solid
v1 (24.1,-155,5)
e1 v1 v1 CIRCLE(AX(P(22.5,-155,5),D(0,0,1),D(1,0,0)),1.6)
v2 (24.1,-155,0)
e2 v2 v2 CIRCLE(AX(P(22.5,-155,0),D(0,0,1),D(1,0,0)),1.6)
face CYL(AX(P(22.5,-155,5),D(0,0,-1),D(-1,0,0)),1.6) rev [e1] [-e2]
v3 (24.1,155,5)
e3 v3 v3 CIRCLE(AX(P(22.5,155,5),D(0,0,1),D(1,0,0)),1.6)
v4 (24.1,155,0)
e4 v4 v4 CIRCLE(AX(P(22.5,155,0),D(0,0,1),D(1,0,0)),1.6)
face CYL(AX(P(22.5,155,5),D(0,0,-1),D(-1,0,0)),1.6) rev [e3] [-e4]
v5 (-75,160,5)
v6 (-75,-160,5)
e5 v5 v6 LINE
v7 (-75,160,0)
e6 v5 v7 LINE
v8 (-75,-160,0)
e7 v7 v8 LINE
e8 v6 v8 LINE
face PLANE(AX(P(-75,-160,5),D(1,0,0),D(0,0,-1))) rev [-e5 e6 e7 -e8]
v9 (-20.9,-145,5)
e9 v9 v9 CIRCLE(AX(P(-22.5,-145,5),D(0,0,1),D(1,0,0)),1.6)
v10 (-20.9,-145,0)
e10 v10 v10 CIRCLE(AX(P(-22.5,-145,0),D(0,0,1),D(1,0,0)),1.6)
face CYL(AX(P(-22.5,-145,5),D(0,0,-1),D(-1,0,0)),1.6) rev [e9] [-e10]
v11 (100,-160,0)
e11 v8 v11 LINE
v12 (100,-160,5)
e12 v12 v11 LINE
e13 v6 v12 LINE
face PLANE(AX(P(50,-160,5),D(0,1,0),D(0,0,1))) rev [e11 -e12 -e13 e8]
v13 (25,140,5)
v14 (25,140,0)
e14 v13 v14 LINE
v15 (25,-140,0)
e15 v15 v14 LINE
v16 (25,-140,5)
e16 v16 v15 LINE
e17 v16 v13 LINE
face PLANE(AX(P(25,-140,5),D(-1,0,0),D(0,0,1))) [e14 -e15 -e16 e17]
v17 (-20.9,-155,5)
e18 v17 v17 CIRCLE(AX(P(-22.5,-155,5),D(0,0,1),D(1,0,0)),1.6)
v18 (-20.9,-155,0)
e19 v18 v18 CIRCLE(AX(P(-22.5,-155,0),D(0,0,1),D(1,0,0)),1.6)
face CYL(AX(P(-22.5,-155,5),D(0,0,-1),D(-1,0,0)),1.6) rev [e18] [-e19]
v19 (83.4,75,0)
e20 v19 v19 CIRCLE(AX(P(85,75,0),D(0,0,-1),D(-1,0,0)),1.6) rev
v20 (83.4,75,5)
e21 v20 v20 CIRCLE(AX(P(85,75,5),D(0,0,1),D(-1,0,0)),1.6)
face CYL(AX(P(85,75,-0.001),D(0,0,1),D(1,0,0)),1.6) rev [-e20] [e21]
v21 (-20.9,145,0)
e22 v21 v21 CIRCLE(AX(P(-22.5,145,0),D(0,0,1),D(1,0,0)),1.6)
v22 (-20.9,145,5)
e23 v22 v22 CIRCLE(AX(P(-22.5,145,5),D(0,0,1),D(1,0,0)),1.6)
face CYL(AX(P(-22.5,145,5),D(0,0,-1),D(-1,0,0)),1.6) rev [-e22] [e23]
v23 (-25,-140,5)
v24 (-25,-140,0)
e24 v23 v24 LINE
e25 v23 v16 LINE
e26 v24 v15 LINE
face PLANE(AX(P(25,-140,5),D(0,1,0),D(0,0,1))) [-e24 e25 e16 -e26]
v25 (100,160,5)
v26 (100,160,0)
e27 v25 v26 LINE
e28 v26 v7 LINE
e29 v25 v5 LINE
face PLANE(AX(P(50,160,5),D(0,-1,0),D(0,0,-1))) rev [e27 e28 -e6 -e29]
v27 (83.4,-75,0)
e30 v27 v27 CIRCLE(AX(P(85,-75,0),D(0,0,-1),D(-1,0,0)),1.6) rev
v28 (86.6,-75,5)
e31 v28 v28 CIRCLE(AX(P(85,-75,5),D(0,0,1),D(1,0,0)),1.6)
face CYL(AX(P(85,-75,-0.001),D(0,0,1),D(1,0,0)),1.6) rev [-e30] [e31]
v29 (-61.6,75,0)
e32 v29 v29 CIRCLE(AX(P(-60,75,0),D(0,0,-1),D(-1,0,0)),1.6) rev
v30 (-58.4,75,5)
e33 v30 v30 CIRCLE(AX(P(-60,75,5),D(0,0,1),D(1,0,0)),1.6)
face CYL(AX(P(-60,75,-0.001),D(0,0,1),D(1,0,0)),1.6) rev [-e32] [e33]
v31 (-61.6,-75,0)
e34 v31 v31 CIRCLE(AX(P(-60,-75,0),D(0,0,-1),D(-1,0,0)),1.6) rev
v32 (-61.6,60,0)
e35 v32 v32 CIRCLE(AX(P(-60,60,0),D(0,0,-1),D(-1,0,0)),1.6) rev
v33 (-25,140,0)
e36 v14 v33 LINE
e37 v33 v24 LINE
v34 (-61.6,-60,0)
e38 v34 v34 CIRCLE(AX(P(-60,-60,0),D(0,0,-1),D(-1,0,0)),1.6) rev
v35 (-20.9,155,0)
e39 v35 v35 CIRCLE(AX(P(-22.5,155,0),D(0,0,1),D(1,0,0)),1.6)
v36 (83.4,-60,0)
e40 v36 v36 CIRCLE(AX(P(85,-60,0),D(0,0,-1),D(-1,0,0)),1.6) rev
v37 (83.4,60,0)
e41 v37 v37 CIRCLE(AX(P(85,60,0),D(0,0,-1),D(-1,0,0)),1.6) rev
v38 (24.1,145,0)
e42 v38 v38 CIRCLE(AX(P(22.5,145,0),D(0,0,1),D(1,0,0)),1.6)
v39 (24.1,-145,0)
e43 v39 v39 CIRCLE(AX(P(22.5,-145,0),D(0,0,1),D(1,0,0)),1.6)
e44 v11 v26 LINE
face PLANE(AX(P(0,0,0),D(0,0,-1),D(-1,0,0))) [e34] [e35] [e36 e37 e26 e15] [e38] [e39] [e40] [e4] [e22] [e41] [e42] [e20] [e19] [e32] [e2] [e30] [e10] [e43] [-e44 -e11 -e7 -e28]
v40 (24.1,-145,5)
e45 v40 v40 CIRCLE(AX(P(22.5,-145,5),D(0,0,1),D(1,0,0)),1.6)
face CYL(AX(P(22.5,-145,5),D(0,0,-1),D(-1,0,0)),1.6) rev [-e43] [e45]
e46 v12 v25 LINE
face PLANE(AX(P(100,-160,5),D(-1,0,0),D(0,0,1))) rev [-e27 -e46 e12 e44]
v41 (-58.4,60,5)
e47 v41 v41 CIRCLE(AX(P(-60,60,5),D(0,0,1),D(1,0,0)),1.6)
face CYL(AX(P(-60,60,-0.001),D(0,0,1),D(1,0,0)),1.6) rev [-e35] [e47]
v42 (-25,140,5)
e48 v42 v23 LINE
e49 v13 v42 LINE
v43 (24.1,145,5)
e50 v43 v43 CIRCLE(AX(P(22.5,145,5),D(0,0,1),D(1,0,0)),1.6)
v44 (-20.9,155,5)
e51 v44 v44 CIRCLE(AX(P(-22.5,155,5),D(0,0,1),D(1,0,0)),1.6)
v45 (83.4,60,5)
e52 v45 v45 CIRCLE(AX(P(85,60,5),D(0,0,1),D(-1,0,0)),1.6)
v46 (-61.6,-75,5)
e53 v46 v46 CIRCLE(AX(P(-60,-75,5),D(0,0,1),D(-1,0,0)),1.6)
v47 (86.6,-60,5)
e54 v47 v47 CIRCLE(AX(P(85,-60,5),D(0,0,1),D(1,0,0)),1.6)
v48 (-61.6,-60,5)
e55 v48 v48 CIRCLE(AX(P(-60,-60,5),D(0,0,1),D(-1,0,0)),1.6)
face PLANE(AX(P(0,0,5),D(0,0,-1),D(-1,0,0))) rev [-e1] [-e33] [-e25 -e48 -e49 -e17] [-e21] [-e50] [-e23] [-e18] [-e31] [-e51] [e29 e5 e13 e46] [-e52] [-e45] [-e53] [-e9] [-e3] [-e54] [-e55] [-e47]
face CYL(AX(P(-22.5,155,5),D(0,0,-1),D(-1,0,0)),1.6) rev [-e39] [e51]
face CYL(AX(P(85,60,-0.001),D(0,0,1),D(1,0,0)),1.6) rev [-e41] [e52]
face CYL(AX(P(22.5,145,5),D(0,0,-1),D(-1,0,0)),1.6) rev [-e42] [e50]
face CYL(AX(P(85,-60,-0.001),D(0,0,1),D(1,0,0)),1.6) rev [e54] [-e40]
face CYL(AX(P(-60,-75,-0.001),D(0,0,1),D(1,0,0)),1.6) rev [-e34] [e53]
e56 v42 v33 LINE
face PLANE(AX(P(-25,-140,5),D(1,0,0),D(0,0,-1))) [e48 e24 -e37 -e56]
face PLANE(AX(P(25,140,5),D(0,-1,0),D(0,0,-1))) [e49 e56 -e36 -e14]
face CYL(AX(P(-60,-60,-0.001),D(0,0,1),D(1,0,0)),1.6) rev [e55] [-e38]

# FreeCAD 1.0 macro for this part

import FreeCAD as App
import Part
import Sketcher

V = App.Vector
Q = App.Units.Quantity

doc = App.newDocument("Part")
body = doc.addObject("PartDesign::Body", "Body")

# Sketch on XY plane
sketch1 = doc.addObject("Sketcher::SketchObject", "Sketch")
body.addObject(sketch1)
sketch1.AttachmentSupport = (doc.XY_Plane, [""])
sketch1.MapMode = "FlatFace"
sketch1.addGeometry(Part.LineSegment(V(-50, 160, 0), V(-50, -160, 0)), False)
sketch1.addGeometry(Part.LineSegment(V(-50, -160, 0), V(50, -160, 0)), False)
sketch1.addGeometry(Part.LineSegment(V(50, -160, 0), V(50, 160, 0)), False)
sketch1.addGeometry(Part.LineSegment(V(50, 160, 0), V(-50, 160, 0)), False)
sketch1.addGeometry(Part.Circle(V(-22.5, -155, 0), V(0, 0, 1), 1.6), False)
sketch1.addGeometry(Part.Circle(V(-22.5, -145, 0), V(0, 0, 1), 1.6), False)
sketch1.addGeometry(Part.Circle(V(22.5, -155, 0), V(0, 0, 1), 1.6), False)
sketch1.addGeometry(Part.Circle(V(22.5, -145, 0), V(0, 0, 1), 1.6), False)
sketch1.addGeometry(Part.Circle(V(-22.5, 145, 0), V(0, 0, 1), 1.6), False)
sketch1.addGeometry(Part.Circle(V(-22.5, 155, 0), V(0, 0, 1), 1.6), False)
sketch1.addGeometry(Part.LineSegment(V(25, -140, 0), V(-25, -140, 0)), False)
sketch1.addGeometry(Part.LineSegment(V(-25, -140, 0), V(-25, 140, 0)), False)
sketch1.addGeometry(Part.LineSegment(V(-25, 140, 0), V(25, 140, 0)), False)
sketch1.addGeometry(Part.LineSegment(V(25, 140, 0), V(25, -140, 0)), False)
sketch1.addGeometry(Part.Circle(V(22.5, 145, 0), V(0, 0, 1), 1.6), False)
sketch1.addGeometry(Part.Circle(V(22.5, 155, 0), V(0, 0, 1), 1.6), False)
sketch1.addConstraint(Sketcher.Constraint("Coincident", 0, 2, 1, 1))
sketch1.addConstraint(Sketcher.Constraint("Coincident", 1, 2, 2, 1))
sketch1.addConstraint(Sketcher.Constraint("Coincident", 2, 2, 3, 1))
sketch1.addConstraint(Sketcher.Constraint("Coincident", 3, 2, 0, 1))
sketch1.addConstraint(Sketcher.Constraint("Coincident", 10, 2, 11, 1))
sketch1.addConstraint(Sketcher.Constraint("Coincident", 11, 2, 12, 1))
sketch1.addConstraint(Sketcher.Constraint("Coincident", 12, 2, 13, 1))
sketch1.addConstraint(Sketcher.Constraint("Coincident", 13, 2, 10, 1))
sketch1.addConstraint(Sketcher.Constraint("Vertical", 0))
sketch1.addConstraint(Sketcher.Constraint("Horizontal", 1))
sketch1.addConstraint(Sketcher.Constraint("Vertical", 2))
sketch1.addConstraint(Sketcher.Constraint("Horizontal", 3))
sketch1.addConstraint(Sketcher.Constraint("Horizontal", 10))
sketch1.addConstraint(Sketcher.Constraint("Vertical", 11))
sketch1.addConstraint(Sketcher.Constraint("Horizontal", 12))
sketch1.addConstraint(Sketcher.Constraint("Vertical", 13))
sketch1.addConstraint(Sketcher.Constraint("Equal", 4, 5))
sketch1.addConstraint(Sketcher.Constraint("Equal", 5, 6))
sketch1.addConstraint(Sketcher.Constraint("Equal", 6, 7))
sketch1.addConstraint(Sketcher.Constraint("Equal", 7, 8))
sketch1.addConstraint(Sketcher.Constraint("Equal", 8, 9))
sketch1.addConstraint(Sketcher.Constraint("Equal", 9, 14))
sketch1.addConstraint(Sketcher.Constraint("Equal", 14, 15))
sketch1.addConstraint(Sketcher.Constraint("Symmetric", 7, 3, 8, 3, -1, 1))
sketch1.addConstraint(Sketcher.Constraint("Symmetric", 6, 3, 9, 3, -1, 1))
sketch1.addConstraint(Sketcher.Constraint("Symmetric", 5, 3, 14, 3, -1, 1))
sketch1.addConstraint(Sketcher.Constraint("Symmetric", 4, 3, 15, 3, -1, 1))
sketch1.addConstraint(Sketcher.Constraint("Symmetric", 0, 2, 2, 2, -1, 1))
sketch1.addConstraint(Sketcher.Constraint("Symmetric", 10, 2, 12, 2, -1, 1))
sketch1.addConstraint(Sketcher.Constraint("Symmetric", 4, 3, 6, 3, -2))
sketch1.addConstraint(Sketcher.Constraint("Symmetric", 5, 3, 7, 3, -2))
sketch1.addConstraint(Sketcher.Constraint("Vertical", 4, 3, 5, 3))
sketch1.addConstraint(Sketcher.Constraint("Diameter", 4, Q("3.2 mm")))
sketch1.addConstraint(Sketcher.Constraint("DistanceX", 1, 1, 1, 2, Q("100 mm")))
sketch1.addConstraint(Sketcher.Constraint("DistanceX", 10, 2, 10, 1, Q("50 mm")))
sketch1.addConstraint(Sketcher.Constraint("DistanceY", 0, 2, 0, 1, Q("320 mm")))
sketch1.addConstraint(Sketcher.Constraint("DistanceY", 11, 1, 11, 2, Q("280 mm")))
sketch1.addConstraint(Sketcher.Constraint("DistanceY", 4, 3, -1, 1, Q("155 mm")))
sketch1.addConstraint(Sketcher.Constraint("DistanceY", 5, 3, -1, 1, Q("145 mm")))
sketch1.addConstraint(Sketcher.Constraint("DistanceX", 4, 3, 6, 3, Q("45 mm")))
pad1 = doc.addObject("PartDesign::Pad", "Pad")
body.addObject(pad1)
pad1.Profile = sketch1
pad1.Length = 5

# Sketch on XY plane
sketch2 = doc.addObject("Sketcher::SketchObject", "Sketch001")
body.addObject(sketch2)
sketch2.AttachmentSupport = (doc.XY_Plane, [""])
sketch2.MapMode = "FlatFace"
sketch2.addGeometry(Part.LineSegment(V(50, 160, 0), V(50, -160, 0)), False)
sketch2.addGeometry(Part.LineSegment(V(50, -160, 0), V(100, -160, 0)), False)
sketch2.addGeometry(Part.LineSegment(V(100, -160, 0), V(100, 160, 0)), False)
sketch2.addGeometry(Part.LineSegment(V(100, 160, 0), V(50, 160, 0)), False)
sketch2.addConstraint(Sketcher.Constraint("Coincident", 0, 2, 1, 1))
sketch2.addConstraint(Sketcher.Constraint("Coincident", 1, 2, 2, 1))
sketch2.addConstraint(Sketcher.Constraint("Coincident", 2, 2, 3, 1))
sketch2.addConstraint(Sketcher.Constraint("Coincident", 3, 2, 0, 1))
sketch2.addConstraint(Sketcher.Constraint("Vertical", 0))
sketch2.addConstraint(Sketcher.Constraint("Horizontal", 1))
sketch2.addConstraint(Sketcher.Constraint("Vertical", 2))
sketch2.addConstraint(Sketcher.Constraint("Horizontal", 3))
sketch2.addConstraint(Sketcher.Constraint("DistanceX", 1, 1, 1, 2, Q("50 mm")))
sketch2.addConstraint(Sketcher.Constraint("DistanceY", 0, 2, 0, 1, Q("320 mm")))
sketch2.addConstraint(Sketcher.Constraint("DistanceX", -1, 1, 0, 2, Q("50 mm")))
sketch2.addConstraint(Sketcher.Constraint("DistanceY", 0, 2, -1, 1, Q("160 mm")))
pad2 = doc.addObject("PartDesign::Pad", "Pad001")
body.addObject(pad2)
pad2.Profile = sketch2
pad2.Length = 5

# Sketch on XY plane
sketch3 = doc.addObject("Sketcher::SketchObject", "Sketch002")
body.addObject(sketch3)
sketch3.AttachmentSupport = (doc.XY_Plane, [""])
sketch3.MapMode = "FlatFace"
sketch3.addGeometry(Part.LineSegment(V(-75, 160, 0), V(-75, -160, 0)), False)
sketch3.addGeometry(Part.LineSegment(V(-75, -160, 0), V(-50, -160, 0)), False)
sketch3.addGeometry(Part.LineSegment(V(-50, -160, 0), V(-50, 160, 0)), False)
sketch3.addGeometry(Part.LineSegment(V(-50, 160, 0), V(-75, 160, 0)), False)
sketch3.addConstraint(Sketcher.Constraint("Coincident", 0, 2, 1, 1))
sketch3.addConstraint(Sketcher.Constraint("Coincident", 1, 2, 2, 1))
sketch3.addConstraint(Sketcher.Constraint("Coincident", 2, 2, 3, 1))
sketch3.addConstraint(Sketcher.Constraint("Coincident", 3, 2, 0, 1))
sketch3.addConstraint(Sketcher.Constraint("Vertical", 0))
sketch3.addConstraint(Sketcher.Constraint("Horizontal", 1))
sketch3.addConstraint(Sketcher.Constraint("Vertical", 2))
sketch3.addConstraint(Sketcher.Constraint("Horizontal", 3))
sketch3.addConstraint(Sketcher.Constraint("DistanceX", 1, 1, 1, 2, Q("25 mm")))
sketch3.addConstraint(Sketcher.Constraint("DistanceY", 0, 2, 0, 1, Q("320 mm")))
sketch3.addConstraint(Sketcher.Constraint("DistanceX", 0, 2, -1, 1, Q("75 mm")))
sketch3.addConstraint(Sketcher.Constraint("DistanceY", 0, 2, -1, 1, Q("160 mm")))
pad3 = doc.addObject("PartDesign::Pad", "Pad002")
body.addObject(pad3)
pad3.Profile = sketch3
pad3.Length = 5

# Sketch on XY plane
sketch4 = doc.addObject("Sketcher::SketchObject", "Sketch003")
body.addObject(sketch4)
sketch4.AttachmentSupport = (doc.XY_Plane, [""])
sketch4.MapMode = "FlatFace"
sketch4.AttachmentOffset = App.Placement(V(0, 0, 5), App.Rotation())
sketch4.addGeometry(Part.Circle(V(-60, 75, 0), V(0, 0, 1), 1.6), False)
sketch4.addConstraint(Sketcher.Constraint("Diameter", 0, Q("3.2 mm")))
sketch4.addConstraint(Sketcher.Constraint("DistanceX", 0, 3, -1, 1, Q("60 mm")))
sketch4.addConstraint(Sketcher.Constraint("DistanceY", -1, 1, 0, 3, Q("75 mm")))
pocket1 = doc.addObject("PartDesign::Pocket", "Pocket")
body.addObject(pocket1)
pocket1.Profile = sketch4
pocket1.Type = "UpToFirst"

# Sketch on XY plane
sketch5 = doc.addObject("Sketcher::SketchObject", "Sketch004")
body.addObject(sketch5)
sketch5.AttachmentSupport = (doc.XY_Plane, [""])
sketch5.MapMode = "FlatFace"
sketch5.AttachmentOffset = App.Placement(V(0, 0, 5), App.Rotation())
sketch5.addGeometry(Part.Circle(V(-60, 60, 0), V(0, 0, 1), 1.6), False)
sketch5.addConstraint(Sketcher.Constraint("Diameter", 0, Q("3.2 mm")))
sketch5.addConstraint(Sketcher.Constraint("DistanceX", 0, 3, -1, 1, Q("60 mm")))
sketch5.addConstraint(Sketcher.Constraint("DistanceY", -1, 1, 0, 3, Q("60 mm")))
pocket2 = doc.addObject("PartDesign::Pocket", "Pocket001")
body.addObject(pocket2)
pocket2.Profile = sketch5
pocket2.Type = "UpToFirst"

# Sketch on XY plane
sketch6 = doc.addObject("Sketcher::SketchObject", "Sketch005")
body.addObject(sketch6)
sketch6.AttachmentSupport = (doc.XY_Plane, [""])
sketch6.MapMode = "FlatFace"
sketch6.AttachmentOffset = App.Placement(V(0, 0, 5), App.Rotation())
sketch6.addGeometry(Part.Circle(V(-60, -60, 0), V(0, 0, 1), 1.6), False)
sketch6.addConstraint(Sketcher.Constraint("Diameter", 0, Q("3.2 mm")))
sketch6.addConstraint(Sketcher.Constraint("DistanceX", 0, 3, -1, 1, Q("60 mm")))
sketch6.addConstraint(Sketcher.Constraint("DistanceY", 0, 3, -1, 1, Q("60 mm")))
pocket3 = doc.addObject("PartDesign::Pocket", "Pocket002")
body.addObject(pocket3)
pocket3.Profile = sketch6
pocket3.Type = "UpToFirst"

# Sketch on XY plane
sketch7 = doc.addObject("Sketcher::SketchObject", "Sketch006")
body.addObject(sketch7)
sketch7.AttachmentSupport = (doc.XY_Plane, [""])
sketch7.MapMode = "FlatFace"
sketch7.AttachmentOffset = App.Placement(V(0, 0, 5), App.Rotation())
sketch7.addGeometry(Part.Circle(V(-60, -75, 0), V(0, 0, 1), 1.6), False)
sketch7.addConstraint(Sketcher.Constraint("Diameter", 0, Q("3.2 mm")))
sketch7.addConstraint(Sketcher.Constraint("DistanceX", 0, 3, -1, 1, Q("60 mm")))
sketch7.addConstraint(Sketcher.Constraint("DistanceY", 0, 3, -1, 1, Q("75 mm")))
pocket4 = doc.addObject("PartDesign::Pocket", "Pocket003")
body.addObject(pocket4)
pocket4.Profile = sketch7
pocket4.Type = "UpToFirst"

# Sketch on XY plane
sketch8 = doc.addObject("Sketcher::SketchObject", "Sketch007")
body.addObject(sketch8)
sketch8.AttachmentSupport = (doc.XY_Plane, [""])
sketch8.MapMode = "FlatFace"
sketch8.AttachmentOffset = App.Placement(V(0, 0, 5), App.Rotation())
sketch8.addGeometry(Part.Circle(V(85, -75, 0), V(0, 0, 1), 1.6), False)
sketch8.addConstraint(Sketcher.Constraint("Diameter", 0, Q("3.2 mm")))
sketch8.addConstraint(Sketcher.Constraint("DistanceX", -1, 1, 0, 3, Q("85 mm")))
sketch8.addConstraint(Sketcher.Constraint("DistanceY", 0, 3, -1, 1, Q("75 mm")))
pocket5 = doc.addObject("PartDesign::Pocket", "Pocket004")
body.addObject(pocket5)
pocket5.Profile = sketch8
pocket5.Type = "UpToFirst"

# Sketch on XY plane
sketch9 = doc.addObject("Sketcher::SketchObject", "Sketch008")
body.addObject(sketch9)
sketch9.AttachmentSupport = (doc.XY_Plane, [""])
sketch9.MapMode = "FlatFace"
sketch9.AttachmentOffset = App.Placement(V(0, 0, 5), App.Rotation())
sketch9.addGeometry(Part.Circle(V(85, -60, 0), V(0, 0, 1), 1.6), False)
sketch9.addConstraint(Sketcher.Constraint("Diameter", 0, Q("3.2 mm")))
sketch9.addConstraint(Sketcher.Constraint("DistanceX", -1, 1, 0, 3, Q("85 mm")))
sketch9.addConstraint(Sketcher.Constraint("DistanceY", 0, 3, -1, 1, Q("60 mm")))
pocket6 = doc.addObject("PartDesign::Pocket", "Pocket005")
body.addObject(pocket6)
pocket6.Profile = sketch9
pocket6.Type = "UpToFirst"

# Sketch on XY plane
sketch10 = doc.addObject("Sketcher::SketchObject", "Sketch009")
body.addObject(sketch10)
sketch10.AttachmentSupport = (doc.XY_Plane, [""])
sketch10.MapMode = "FlatFace"
sketch10.AttachmentOffset = App.Placement(V(0, 0, 5), App.Rotation())
sketch10.addGeometry(Part.Circle(V(85, 60, 0), V(0, 0, 1), 1.6), False)
sketch10.addConstraint(Sketcher.Constraint("Diameter", 0, Q("3.2 mm")))
sketch10.addConstraint(Sketcher.Constraint("DistanceX", -1, 1, 0, 3, Q("85 mm")))
sketch10.addConstraint(Sketcher.Constraint("DistanceY", -1, 1, 0, 3, Q("60 mm")))
pocket7 = doc.addObject("PartDesign::Pocket", "Pocket006")
body.addObject(pocket7)
pocket7.Profile = sketch10
pocket7.Type = "UpToFirst"

# Sketch on XY plane
sketch11 = doc.addObject("Sketcher::SketchObject", "Sketch010")
body.addObject(sketch11)
sketch11.AttachmentSupport = (doc.XY_Plane, [""])
sketch11.MapMode = "FlatFace"
sketch11.AttachmentOffset = App.Placement(V(0, 0, 5), App.Rotation())
sketch11.addGeometry(Part.Circle(V(85, 75, 0), V(0, 0, 1), 1.6), False)
sketch11.addConstraint(Sketcher.Constraint("Diameter", 0, Q("3.2 mm")))
sketch11.addConstraint(Sketcher.Constraint("DistanceX", -1, 1, 0, 3, Q("85 mm")))
sketch11.addConstraint(Sketcher.Constraint("DistanceY", -1, 1, 0, 3, Q("75 mm")))
pocket8 = doc.addObject("PartDesign::Pocket", "Pocket007")
body.addObject(pocket8)
pocket8.Profile = sketch11
pocket8.Type = "UpToFirst"

doc.recompute()
